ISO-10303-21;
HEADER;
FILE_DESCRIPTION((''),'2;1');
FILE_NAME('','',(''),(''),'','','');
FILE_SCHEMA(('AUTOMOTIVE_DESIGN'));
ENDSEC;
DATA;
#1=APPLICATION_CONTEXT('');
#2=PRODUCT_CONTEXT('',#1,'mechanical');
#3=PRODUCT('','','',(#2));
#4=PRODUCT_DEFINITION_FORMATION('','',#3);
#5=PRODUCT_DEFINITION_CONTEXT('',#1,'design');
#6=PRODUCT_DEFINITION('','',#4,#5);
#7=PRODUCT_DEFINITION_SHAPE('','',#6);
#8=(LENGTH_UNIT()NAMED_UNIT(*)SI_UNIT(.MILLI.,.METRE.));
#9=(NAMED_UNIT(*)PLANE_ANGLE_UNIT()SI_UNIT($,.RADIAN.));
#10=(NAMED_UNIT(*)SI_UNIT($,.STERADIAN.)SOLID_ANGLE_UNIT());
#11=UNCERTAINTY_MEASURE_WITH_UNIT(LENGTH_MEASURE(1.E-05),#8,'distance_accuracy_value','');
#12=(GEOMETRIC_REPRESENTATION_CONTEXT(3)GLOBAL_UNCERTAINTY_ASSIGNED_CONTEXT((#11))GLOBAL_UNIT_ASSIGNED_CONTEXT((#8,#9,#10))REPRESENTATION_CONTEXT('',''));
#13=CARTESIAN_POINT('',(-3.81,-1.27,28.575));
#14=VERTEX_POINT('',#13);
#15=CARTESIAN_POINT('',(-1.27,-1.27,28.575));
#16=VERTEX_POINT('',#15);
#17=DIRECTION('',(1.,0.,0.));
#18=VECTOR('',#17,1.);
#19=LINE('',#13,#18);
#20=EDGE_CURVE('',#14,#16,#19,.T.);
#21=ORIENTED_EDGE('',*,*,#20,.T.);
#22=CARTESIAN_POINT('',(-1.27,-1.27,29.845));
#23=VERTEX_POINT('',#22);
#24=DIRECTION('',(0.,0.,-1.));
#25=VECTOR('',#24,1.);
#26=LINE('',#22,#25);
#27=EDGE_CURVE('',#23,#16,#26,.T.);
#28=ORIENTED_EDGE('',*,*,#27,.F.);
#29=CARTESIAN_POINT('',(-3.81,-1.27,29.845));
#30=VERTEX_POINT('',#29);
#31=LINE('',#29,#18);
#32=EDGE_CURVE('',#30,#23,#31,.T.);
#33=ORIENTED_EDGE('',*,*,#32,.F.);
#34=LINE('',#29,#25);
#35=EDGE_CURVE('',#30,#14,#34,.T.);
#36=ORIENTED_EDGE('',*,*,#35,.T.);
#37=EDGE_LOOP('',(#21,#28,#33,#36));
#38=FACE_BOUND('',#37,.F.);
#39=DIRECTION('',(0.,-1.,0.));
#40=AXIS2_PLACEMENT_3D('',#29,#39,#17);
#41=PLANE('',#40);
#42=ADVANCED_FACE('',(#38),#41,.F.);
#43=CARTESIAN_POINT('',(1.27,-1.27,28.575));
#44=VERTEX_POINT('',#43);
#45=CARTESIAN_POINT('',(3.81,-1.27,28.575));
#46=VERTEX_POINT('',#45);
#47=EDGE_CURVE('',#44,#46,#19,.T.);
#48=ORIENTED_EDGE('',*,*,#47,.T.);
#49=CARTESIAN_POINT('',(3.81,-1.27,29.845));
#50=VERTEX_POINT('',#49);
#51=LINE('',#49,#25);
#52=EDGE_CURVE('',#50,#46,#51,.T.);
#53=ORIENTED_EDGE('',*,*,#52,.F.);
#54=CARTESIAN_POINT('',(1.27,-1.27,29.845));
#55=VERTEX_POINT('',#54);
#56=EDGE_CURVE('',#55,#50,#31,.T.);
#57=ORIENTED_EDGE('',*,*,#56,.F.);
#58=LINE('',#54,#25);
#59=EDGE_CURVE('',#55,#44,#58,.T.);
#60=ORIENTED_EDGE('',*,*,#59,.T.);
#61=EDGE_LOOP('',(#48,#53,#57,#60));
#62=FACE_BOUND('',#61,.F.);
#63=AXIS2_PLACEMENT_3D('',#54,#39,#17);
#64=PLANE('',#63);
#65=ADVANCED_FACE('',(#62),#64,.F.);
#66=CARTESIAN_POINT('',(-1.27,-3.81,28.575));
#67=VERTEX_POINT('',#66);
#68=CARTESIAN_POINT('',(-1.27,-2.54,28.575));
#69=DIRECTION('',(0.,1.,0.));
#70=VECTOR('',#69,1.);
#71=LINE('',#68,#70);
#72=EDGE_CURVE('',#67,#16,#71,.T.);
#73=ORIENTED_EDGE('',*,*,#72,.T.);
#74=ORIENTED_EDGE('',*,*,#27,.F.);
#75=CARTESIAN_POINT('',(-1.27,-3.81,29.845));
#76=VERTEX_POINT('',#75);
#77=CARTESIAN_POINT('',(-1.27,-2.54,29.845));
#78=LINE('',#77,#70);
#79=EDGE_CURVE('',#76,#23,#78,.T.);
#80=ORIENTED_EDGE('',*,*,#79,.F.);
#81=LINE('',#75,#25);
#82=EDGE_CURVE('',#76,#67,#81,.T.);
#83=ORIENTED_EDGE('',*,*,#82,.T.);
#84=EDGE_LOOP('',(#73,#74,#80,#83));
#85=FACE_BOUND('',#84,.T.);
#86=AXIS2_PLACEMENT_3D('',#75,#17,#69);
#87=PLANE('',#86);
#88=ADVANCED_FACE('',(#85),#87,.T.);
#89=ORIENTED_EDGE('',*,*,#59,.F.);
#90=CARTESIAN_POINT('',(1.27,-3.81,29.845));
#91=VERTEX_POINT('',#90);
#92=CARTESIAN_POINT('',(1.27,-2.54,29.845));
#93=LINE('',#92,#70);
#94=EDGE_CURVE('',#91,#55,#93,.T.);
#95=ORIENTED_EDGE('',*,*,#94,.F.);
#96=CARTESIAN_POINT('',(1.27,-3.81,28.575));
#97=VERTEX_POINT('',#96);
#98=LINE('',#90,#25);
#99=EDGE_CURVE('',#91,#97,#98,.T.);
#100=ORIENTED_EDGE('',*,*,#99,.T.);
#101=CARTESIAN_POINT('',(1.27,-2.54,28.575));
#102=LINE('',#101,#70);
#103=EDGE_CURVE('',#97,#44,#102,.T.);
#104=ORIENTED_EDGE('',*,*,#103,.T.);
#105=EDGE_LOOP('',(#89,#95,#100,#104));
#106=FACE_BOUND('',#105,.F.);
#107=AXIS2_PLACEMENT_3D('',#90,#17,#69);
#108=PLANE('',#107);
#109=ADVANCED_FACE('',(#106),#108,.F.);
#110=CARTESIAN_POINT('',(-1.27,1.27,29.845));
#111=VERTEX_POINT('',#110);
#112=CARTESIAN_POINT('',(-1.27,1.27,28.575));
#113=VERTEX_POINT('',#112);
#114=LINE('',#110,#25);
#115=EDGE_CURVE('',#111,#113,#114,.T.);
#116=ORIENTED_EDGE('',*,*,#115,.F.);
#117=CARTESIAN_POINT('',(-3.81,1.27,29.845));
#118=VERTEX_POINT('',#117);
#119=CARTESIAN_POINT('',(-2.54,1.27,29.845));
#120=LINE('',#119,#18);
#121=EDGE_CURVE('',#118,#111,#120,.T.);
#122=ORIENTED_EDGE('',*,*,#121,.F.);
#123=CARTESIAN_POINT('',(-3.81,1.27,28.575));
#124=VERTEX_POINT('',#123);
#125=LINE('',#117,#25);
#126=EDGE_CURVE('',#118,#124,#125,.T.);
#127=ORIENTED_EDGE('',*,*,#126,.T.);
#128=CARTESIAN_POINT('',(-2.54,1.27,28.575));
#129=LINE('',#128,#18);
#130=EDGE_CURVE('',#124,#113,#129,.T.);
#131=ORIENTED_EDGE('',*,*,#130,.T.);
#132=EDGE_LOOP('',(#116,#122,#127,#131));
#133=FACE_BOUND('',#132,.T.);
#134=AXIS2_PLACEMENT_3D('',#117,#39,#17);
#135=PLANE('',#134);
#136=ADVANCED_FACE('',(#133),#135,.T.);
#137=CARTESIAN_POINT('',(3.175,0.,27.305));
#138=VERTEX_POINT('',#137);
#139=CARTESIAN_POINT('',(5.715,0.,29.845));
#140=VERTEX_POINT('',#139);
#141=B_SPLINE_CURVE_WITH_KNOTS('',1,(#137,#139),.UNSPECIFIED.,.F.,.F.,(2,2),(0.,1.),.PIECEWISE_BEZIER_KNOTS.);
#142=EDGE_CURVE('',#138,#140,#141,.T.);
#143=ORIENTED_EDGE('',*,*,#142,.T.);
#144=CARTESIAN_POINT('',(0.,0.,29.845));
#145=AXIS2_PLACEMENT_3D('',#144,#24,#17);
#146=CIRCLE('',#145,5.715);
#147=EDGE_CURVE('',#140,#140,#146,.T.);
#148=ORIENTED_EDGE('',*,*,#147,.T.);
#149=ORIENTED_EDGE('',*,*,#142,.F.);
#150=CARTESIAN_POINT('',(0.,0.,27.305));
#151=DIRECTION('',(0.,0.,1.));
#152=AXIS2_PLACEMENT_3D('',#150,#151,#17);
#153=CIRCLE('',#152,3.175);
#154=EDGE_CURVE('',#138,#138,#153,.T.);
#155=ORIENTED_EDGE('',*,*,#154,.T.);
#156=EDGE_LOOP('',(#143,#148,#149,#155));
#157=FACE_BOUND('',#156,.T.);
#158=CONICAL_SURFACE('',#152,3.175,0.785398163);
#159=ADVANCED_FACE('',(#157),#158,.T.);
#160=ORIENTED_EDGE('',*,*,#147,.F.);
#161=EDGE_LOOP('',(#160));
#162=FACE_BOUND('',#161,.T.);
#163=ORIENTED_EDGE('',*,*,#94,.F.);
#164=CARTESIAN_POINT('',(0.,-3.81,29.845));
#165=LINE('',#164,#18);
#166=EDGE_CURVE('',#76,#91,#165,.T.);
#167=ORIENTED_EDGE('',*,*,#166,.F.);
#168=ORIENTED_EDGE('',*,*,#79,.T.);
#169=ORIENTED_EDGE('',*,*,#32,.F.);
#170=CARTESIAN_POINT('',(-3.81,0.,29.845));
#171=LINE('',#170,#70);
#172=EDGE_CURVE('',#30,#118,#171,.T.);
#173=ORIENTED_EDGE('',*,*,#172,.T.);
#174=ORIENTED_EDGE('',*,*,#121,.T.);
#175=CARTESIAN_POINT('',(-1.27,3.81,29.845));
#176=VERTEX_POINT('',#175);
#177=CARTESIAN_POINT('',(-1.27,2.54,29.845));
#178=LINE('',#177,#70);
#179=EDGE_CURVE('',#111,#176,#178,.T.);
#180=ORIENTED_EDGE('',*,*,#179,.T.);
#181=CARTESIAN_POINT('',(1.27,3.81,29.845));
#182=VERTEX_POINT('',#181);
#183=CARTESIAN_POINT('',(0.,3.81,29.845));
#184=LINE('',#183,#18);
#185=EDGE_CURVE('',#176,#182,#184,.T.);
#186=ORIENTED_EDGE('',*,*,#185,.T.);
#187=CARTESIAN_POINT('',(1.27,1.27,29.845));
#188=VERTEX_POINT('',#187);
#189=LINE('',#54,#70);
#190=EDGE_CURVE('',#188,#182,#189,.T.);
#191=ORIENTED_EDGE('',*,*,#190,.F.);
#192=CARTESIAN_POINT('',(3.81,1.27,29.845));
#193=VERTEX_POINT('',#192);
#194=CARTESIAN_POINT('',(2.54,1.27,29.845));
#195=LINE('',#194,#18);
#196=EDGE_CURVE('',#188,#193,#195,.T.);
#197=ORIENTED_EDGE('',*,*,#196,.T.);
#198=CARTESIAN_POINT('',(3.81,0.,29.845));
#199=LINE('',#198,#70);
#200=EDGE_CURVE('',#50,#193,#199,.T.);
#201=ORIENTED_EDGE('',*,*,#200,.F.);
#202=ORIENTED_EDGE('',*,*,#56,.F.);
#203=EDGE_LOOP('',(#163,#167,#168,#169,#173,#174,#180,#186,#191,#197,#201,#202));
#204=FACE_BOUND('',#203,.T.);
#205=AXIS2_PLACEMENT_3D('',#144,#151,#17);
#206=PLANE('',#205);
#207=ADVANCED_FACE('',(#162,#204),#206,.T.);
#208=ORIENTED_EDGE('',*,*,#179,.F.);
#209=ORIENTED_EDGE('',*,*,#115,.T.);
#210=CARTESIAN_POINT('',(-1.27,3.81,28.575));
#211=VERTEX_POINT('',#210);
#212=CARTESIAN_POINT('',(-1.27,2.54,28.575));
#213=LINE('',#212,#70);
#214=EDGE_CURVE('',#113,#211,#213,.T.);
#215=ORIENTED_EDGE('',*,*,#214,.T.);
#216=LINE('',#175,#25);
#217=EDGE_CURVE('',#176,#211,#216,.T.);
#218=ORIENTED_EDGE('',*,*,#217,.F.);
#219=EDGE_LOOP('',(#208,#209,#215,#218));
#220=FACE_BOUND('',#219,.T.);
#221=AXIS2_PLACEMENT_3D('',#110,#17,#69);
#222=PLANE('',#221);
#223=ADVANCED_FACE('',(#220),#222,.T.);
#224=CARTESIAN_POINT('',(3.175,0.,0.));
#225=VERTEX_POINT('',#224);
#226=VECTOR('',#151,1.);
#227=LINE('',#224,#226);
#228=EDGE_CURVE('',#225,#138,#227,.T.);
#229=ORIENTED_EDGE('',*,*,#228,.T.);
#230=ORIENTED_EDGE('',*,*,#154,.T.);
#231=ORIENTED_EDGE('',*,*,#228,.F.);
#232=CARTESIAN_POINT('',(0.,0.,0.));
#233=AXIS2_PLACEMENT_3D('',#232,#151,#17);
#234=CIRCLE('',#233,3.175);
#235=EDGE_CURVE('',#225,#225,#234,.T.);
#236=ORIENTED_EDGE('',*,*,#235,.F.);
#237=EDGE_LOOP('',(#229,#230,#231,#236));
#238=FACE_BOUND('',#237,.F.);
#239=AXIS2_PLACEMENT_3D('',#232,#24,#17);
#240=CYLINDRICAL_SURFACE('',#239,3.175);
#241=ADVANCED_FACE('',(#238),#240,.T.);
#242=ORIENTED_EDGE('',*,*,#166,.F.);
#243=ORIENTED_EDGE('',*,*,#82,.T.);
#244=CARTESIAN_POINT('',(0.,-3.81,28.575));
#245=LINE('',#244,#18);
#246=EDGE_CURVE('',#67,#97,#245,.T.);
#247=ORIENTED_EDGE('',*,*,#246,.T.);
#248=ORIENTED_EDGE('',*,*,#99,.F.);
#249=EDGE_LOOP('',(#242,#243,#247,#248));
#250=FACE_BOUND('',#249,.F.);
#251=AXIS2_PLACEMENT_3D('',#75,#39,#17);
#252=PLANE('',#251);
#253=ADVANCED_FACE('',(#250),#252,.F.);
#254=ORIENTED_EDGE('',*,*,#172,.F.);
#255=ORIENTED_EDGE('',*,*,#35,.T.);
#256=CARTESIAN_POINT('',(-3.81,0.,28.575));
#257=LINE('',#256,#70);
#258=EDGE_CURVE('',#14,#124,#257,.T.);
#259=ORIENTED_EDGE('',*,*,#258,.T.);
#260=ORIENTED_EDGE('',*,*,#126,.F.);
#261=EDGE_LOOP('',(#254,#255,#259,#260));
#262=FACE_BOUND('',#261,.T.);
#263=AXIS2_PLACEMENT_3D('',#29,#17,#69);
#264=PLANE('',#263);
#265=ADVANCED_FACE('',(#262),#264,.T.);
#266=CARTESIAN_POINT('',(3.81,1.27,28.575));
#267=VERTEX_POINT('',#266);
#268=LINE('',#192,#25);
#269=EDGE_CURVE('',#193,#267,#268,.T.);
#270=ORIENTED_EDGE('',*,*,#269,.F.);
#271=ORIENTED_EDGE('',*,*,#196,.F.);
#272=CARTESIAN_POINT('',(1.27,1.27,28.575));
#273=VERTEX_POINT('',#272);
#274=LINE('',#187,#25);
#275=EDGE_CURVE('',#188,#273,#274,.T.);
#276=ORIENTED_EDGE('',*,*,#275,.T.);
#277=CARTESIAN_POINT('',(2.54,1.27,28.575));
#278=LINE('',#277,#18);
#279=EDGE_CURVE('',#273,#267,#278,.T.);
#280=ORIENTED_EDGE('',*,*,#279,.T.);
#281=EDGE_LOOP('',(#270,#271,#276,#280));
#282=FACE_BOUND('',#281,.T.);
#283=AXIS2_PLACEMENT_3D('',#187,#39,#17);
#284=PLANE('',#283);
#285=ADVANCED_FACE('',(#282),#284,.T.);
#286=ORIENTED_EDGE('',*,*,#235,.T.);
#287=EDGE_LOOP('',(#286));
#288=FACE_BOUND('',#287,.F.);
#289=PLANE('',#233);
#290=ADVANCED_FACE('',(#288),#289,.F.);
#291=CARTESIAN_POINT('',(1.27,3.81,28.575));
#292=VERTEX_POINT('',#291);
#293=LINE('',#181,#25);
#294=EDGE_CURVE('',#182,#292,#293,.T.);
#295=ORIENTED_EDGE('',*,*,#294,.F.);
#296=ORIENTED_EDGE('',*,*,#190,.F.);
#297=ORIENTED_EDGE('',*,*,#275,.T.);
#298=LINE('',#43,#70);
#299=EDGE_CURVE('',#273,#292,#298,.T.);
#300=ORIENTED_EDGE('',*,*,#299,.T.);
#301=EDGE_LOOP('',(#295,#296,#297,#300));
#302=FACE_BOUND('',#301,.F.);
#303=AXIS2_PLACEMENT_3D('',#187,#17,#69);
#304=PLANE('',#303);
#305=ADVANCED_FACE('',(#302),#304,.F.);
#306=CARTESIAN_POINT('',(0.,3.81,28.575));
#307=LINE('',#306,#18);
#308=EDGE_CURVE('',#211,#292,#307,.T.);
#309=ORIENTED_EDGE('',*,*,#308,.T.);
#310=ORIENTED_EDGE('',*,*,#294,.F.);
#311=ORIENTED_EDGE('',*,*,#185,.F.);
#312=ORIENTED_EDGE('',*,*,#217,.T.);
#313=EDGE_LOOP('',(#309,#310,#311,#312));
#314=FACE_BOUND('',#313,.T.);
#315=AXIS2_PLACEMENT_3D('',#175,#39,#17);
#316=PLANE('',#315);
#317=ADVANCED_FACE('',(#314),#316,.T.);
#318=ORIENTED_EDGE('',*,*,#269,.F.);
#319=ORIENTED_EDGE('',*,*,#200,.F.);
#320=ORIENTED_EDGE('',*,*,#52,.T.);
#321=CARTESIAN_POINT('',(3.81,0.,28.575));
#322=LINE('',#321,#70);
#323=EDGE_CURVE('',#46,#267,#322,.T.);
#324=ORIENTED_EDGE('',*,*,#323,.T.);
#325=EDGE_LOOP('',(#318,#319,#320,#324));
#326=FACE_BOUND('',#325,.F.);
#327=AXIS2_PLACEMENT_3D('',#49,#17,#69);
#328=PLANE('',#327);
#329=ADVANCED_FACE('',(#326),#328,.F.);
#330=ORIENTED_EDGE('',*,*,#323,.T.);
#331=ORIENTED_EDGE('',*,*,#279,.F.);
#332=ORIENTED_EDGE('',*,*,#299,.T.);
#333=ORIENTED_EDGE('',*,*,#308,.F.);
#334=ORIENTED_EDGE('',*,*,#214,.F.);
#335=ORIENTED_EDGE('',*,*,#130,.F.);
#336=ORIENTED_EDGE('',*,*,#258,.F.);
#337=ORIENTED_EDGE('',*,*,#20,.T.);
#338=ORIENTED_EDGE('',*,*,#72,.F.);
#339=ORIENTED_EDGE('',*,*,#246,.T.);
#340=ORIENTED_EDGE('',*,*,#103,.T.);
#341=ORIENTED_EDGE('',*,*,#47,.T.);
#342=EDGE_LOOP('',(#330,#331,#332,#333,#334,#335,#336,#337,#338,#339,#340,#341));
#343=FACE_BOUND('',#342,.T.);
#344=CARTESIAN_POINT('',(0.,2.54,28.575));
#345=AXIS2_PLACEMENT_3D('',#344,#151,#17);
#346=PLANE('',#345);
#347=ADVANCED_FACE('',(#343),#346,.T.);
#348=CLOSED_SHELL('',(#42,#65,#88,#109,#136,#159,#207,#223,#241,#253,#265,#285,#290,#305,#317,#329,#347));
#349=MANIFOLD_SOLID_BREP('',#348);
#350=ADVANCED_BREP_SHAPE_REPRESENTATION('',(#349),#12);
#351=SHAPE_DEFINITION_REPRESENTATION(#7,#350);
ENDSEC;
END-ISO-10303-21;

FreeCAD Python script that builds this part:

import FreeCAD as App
import Part
import Sketcher

V = App.Vector
Q = App.Units.Quantity

doc = App.newDocument("Part")
params = doc.addObject("Spreadsheet::Sheet", "Params")
for row, (alias, value) in enumerate([
    ("sketch1_diameter", "0.25 in"),
    ("pad1_length", "1.075 in"),
    ("sketch2_diameter", "0.25 in"),
    ("pad2_length", "0.1 in"),
    ("pad2_taper", "45 deg"),
    ("sketch3_width", "0.1 in"),
    ("pocket1_length", "0.05 in"),
], start=1):
    params.set(f"A{row}", alias)
    params.set(f"B{row}", "=" + value)
    params.setAlias(f"B{row}", alias)

body = doc.addObject("PartDesign::Body", "Body")

# Sketch on XY plane
sketch1 = body.newObject("Sketcher::SketchObject", "Sketch")
sketch1.AttachmentSupport = (doc.getObject("XY_Plane"), [""])
sketch1.MapMode = "FlatFace"
sketch1.addGeometry(Part.Circle(V(0, 0, 0), V(0, 0, 1), 3.2), False)
sketch1.addConstraint([
    Sketcher.Constraint("Coincident", 0, 3, -1, 1),
    Sketcher.Constraint("Diameter", 0, Q("0.25 in")),
])
sketch1.setExpression("Constraints[1]", "Params.sketch1_diameter")
pad1 = body.newObject("PartDesign::Pad", "Pad")
pad1.Profile = sketch1
pad1.setExpression("Length", "Params.pad1_length")

# Sketch on XY plane
sketch2 = body.newObject("Sketcher::SketchObject", "Sketch001")
sketch2.AttachmentSupport = (doc.getObject("XY_Plane"), [""])
sketch2.MapMode = "FlatFace"
sketch2.AttachmentOffset = App.Placement(V(0, 0, 1.075 * 25.4), App.Rotation())
sketch2.addGeometry(Part.Circle(V(0, 0, 0), V(0, 0, 1), 3.2), False)
sketch2.addConstraint([
    Sketcher.Constraint("Coincident", 0, 3, -1, 1),
    Sketcher.Constraint("Diameter", 0, Q("0.25 in")),
])
sketch2.setExpression("Constraints[1]", "Params.sketch2_diameter")
pad2 = body.newObject("PartDesign::Pad", "Pad001")
pad2.Profile = sketch2
pad2.setExpression("Length", "Params.pad2_length")
pad2.setExpression("TaperAngle", "Params.pad2_taper")

# Sketch on XY plane
sketch3 = body.newObject("Sketcher::SketchObject", "Sketch002")
sketch3.AttachmentSupport = (doc.getObject("XY_Plane"), [""])
sketch3.MapMode = "FlatFace"
sketch3.AttachmentOffset = App.Placement(V(0, 0, 1.175 * 25.4), App.Rotation())
sketch3.addGeometry([
    Part.LineSegment(V(-1.3, 3.8, 0), V(-1.3, 1.3, 0)),  # 0
    Part.LineSegment(V(-1.3, 1.3, 0), V(-3.8, 1.3, 0)),  # 1
    Part.LineSegment(V(-3.8, 1.3, 0), V(-3.8, -1.3, 0)),  # 2
    Part.LineSegment(V(-3.8, -1.3, 0), V(-1.3, -1.3, 0)),  # 3
    Part.LineSegment(V(-1.3, -1.3, 0), V(-1.3, -3.8, 0)),  # 4
    Part.LineSegment(V(-1.3, -3.8, 0), V(1.3, -3.8, 0)),  # 5
    Part.LineSegment(V(1.3, -3.8, 0), V(1.3, -1.3, 0)),  # 6
    Part.LineSegment(V(1.3, -1.3, 0), V(3.8, -1.3, 0)),  # 7
    Part.LineSegment(V(3.8, -1.3, 0), V(3.8, 1.3, 0)),  # 8
    Part.LineSegment(V(3.8, 1.3, 0), V(1.3, 1.3, 0)),  # 9
    Part.LineSegment(V(1.3, 1.3, 0), V(1.3, 3.8, 0)),  # 10
    Part.LineSegment(V(1.3, 3.8, 0), V(-1.3, 3.8, 0)),  # 11
], False)
sketch3.addConstraint([
    Sketcher.Constraint("Coincident", 0, 2, 1, 1),
    Sketcher.Constraint("Coincident", 1, 2, 2, 1),
    Sketcher.Constraint("Coincident", 2, 2, 3, 1),
    Sketcher.Constraint("Coincident", 3, 2, 4, 1),
    Sketcher.Constraint("Coincident", 4, 2, 5, 1),
    Sketcher.Constraint("Coincident", 5, 2, 6, 1),
    Sketcher.Constraint("Coincident", 6, 2, 7, 1),
    Sketcher.Constraint("Coincident", 7, 2, 8, 1),
    Sketcher.Constraint("Coincident", 8, 2, 9, 1),
    Sketcher.Constraint("Coincident", 9, 2, 10, 1),
    Sketcher.Constraint("Coincident", 10, 2, 11, 1),
    Sketcher.Constraint("Coincident", 11, 2, 0, 1),
    Sketcher.Constraint("Vertical", 0),
    Sketcher.Constraint("Horizontal", 1),
    Sketcher.Constraint("Vertical", 2),
    Sketcher.Constraint("Horizontal", 3),
    Sketcher.Constraint("Vertical", 4),
    Sketcher.Constraint("Horizontal", 5),
    Sketcher.Constraint("Vertical", 6),
    Sketcher.Constraint("Horizontal", 7),
    Sketcher.Constraint("Vertical", 8),
    Sketcher.Constraint("Horizontal", 9),
    Sketcher.Constraint("Vertical", 10),
    Sketcher.Constraint("Horizontal", 11),
    Sketcher.Constraint("Symmetric", 0, 2, 6, 2, -1, 1),
    Sketcher.Constraint("Symmetric", 2, 2, 8, 2, -1, 1),
    Sketcher.Constraint("Symmetric", 4, 2, 10, 2, -1, 1),
    Sketcher.Constraint("Symmetric", 3, 2, 6, 2, -2),
    Sketcher.Constraint("Equal", 3, 5),
    Sketcher.Constraint("Equal", 11, 0),
    Sketcher.Constraint("Equal", 0, 2),
    Sketcher.Constraint("DistanceX", 1, 2, 1, 1, Q("0.1 in")),
])
sketch3.setExpression("Constraints[31]", "Params.sketch3_width")
pocket1 = body.newObject("PartDesign::Pocket", "Pocket")
pocket1.Profile = sketch3
pocket1.setExpression("Length", "Params.pocket1_length")

doc.recompute()
